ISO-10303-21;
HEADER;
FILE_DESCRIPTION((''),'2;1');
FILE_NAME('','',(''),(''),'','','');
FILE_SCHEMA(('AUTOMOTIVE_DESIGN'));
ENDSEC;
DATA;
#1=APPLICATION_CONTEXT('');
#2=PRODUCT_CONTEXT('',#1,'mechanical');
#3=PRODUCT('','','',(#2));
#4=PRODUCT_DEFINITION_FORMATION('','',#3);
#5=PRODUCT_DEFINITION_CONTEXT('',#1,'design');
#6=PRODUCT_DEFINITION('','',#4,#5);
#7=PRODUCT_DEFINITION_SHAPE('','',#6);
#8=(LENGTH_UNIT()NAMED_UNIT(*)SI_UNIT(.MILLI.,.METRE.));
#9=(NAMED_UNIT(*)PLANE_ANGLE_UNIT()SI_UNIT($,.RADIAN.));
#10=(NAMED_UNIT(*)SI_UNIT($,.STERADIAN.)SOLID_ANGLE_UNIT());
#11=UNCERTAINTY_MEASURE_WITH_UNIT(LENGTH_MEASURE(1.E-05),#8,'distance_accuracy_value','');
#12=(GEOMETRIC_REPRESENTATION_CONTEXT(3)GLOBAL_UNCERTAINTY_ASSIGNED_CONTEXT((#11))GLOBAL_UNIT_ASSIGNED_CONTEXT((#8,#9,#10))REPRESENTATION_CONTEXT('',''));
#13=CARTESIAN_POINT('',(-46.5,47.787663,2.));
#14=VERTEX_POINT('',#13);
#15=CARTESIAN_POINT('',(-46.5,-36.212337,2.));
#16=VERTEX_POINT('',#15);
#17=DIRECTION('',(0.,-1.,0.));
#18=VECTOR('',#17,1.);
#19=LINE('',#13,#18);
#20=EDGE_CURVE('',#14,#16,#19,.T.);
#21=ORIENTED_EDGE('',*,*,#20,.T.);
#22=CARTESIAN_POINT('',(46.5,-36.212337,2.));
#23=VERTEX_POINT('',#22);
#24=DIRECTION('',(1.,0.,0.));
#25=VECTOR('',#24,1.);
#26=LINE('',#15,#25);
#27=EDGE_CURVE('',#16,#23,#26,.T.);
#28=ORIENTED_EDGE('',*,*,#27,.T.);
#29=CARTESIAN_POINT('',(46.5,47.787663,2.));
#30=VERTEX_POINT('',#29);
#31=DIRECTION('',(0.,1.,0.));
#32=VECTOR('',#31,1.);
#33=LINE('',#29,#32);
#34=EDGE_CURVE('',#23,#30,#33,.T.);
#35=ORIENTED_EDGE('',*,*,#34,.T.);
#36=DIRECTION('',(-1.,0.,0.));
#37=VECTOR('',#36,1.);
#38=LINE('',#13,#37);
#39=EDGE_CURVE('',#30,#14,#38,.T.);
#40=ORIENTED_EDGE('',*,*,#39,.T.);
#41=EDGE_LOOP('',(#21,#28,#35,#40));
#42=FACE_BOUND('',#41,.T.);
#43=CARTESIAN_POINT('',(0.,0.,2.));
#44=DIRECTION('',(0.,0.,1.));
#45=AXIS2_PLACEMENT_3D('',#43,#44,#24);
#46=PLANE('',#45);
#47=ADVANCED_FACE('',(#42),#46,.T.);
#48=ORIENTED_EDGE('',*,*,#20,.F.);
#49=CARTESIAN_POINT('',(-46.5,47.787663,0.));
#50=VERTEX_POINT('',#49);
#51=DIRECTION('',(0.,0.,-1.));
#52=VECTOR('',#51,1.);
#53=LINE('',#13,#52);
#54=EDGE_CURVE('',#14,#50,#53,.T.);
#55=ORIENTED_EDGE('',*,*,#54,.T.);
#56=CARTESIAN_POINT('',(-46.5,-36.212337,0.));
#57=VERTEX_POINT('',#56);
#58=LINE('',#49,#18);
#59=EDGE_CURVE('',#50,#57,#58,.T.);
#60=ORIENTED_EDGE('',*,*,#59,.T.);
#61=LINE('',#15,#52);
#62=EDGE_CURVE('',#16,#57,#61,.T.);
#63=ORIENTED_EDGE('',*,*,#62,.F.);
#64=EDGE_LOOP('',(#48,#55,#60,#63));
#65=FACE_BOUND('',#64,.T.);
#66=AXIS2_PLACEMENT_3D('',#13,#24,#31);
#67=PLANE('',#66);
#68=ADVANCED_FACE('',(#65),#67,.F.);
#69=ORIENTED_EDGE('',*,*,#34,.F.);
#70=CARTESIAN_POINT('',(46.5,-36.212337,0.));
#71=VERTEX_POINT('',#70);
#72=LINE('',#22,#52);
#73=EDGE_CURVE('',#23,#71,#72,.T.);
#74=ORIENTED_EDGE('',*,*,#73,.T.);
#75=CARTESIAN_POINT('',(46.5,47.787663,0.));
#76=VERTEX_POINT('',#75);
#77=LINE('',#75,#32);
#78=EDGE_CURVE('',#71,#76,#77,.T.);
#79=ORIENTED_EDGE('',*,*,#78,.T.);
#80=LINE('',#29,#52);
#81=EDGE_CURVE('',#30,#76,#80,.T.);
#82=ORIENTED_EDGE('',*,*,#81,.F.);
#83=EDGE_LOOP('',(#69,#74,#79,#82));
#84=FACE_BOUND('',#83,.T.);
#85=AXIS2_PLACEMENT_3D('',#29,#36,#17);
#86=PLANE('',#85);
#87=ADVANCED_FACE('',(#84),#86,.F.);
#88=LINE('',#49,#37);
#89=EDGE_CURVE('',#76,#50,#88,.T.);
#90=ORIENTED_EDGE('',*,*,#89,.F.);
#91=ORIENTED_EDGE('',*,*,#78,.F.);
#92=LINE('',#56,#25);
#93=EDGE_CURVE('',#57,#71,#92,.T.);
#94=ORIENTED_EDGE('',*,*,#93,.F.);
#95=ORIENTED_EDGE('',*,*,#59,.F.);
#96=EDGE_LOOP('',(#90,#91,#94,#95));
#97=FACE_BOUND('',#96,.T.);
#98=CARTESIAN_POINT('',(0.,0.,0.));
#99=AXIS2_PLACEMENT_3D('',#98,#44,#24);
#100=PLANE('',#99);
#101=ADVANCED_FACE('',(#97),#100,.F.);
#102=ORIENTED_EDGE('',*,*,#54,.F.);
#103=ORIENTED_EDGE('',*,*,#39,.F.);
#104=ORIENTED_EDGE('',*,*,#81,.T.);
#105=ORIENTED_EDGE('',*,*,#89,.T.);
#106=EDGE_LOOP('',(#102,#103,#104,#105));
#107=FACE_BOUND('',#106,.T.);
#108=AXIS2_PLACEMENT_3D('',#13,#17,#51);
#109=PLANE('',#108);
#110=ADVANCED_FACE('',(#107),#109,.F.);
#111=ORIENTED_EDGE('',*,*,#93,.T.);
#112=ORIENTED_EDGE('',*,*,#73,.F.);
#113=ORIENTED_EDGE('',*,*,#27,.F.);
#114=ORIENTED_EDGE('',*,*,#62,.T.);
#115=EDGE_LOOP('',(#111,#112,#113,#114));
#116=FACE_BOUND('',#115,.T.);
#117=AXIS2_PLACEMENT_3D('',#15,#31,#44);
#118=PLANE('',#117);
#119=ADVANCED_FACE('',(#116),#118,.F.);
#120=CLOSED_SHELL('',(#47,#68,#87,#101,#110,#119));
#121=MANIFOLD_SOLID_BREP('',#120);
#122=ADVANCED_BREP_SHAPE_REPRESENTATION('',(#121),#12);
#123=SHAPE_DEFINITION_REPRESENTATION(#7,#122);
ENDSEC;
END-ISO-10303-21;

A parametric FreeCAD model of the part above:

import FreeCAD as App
import Part
import Sketcher
from FreeCAD import Vector


def add_polygon(sketch, points):
    """Adds a closed chain of lines whose ends are joined by coincident constraints."""
    first, n = sketch.GeometryCount, len(points)
    for a, b in zip(points, points[1:] + points[:1]):
        sketch.addGeometry(Part.LineSegment(App.Vector(*a, 0), App.Vector(*b, 0)), False)
    for i in range(n):
        sketch.addConstraint(Sketcher.Constraint("Coincident", first + i, 2, first + (i + 1) % n, 1))

doc = App.newDocument("Part")
params = doc.addObject("Spreadsheet::Sheet", "Params")
for row, (alias, value) in enumerate([
    ("sketch1_width", "93 mm"),
    ("sketch1_height", "84 mm"),
    ("pad1_length", "2 mm"),
], start=1):
    params.set(f"A{row}", alias)
    params.set(f"B{row}", "=" + value)
    params.setAlias(f"B{row}", alias)

body = doc.addObject("PartDesign::Body", "Body")

sketch1 = body.newObject("Sketcher::SketchObject", "Sketch")
sketch1.AttachmentSupport = (doc.getObject("XY_Plane"), [""])
sketch1.MapMode = "FlatFace"
add_polygon(sketch1, [(-46, 48), (-46, -36), (46, -36), (46, 48)])
sketch1.addConstraint(Sketcher.Constraint("Vertical", 0))
sketch1.addConstraint(Sketcher.Constraint("Horizontal", 1))
sketch1.addConstraint(Sketcher.Constraint("Vertical", 2))
sketch1.addConstraint(Sketcher.Constraint("Horizontal", 3))
sketch1.addConstraint(Sketcher.Constraint("DistanceX", 1, 1, 1, 2, 93.0))
sketch1.addConstraint(Sketcher.Constraint("DistanceY", 0, 2, 0, 1, 84.0))
sketch1.addConstraint(Sketcher.Constraint("DistanceX", 0, 2, -1, 1, 46.5))
sketch1.addConstraint(Sketcher.Constraint("DistanceY", 0, 2, -1, 1, 36.212337))
sketch1.setExpression("Constraints[8]", "Params.sketch1_width")
sketch1.setExpression("Constraints[9]", "Params.sketch1_height")
pad1 = body.newObject("PartDesign::Pad", "Pad")
pad1.Profile = sketch1
pad1.setExpression("Length", "Params.pad1_length")

doc.recompute()
